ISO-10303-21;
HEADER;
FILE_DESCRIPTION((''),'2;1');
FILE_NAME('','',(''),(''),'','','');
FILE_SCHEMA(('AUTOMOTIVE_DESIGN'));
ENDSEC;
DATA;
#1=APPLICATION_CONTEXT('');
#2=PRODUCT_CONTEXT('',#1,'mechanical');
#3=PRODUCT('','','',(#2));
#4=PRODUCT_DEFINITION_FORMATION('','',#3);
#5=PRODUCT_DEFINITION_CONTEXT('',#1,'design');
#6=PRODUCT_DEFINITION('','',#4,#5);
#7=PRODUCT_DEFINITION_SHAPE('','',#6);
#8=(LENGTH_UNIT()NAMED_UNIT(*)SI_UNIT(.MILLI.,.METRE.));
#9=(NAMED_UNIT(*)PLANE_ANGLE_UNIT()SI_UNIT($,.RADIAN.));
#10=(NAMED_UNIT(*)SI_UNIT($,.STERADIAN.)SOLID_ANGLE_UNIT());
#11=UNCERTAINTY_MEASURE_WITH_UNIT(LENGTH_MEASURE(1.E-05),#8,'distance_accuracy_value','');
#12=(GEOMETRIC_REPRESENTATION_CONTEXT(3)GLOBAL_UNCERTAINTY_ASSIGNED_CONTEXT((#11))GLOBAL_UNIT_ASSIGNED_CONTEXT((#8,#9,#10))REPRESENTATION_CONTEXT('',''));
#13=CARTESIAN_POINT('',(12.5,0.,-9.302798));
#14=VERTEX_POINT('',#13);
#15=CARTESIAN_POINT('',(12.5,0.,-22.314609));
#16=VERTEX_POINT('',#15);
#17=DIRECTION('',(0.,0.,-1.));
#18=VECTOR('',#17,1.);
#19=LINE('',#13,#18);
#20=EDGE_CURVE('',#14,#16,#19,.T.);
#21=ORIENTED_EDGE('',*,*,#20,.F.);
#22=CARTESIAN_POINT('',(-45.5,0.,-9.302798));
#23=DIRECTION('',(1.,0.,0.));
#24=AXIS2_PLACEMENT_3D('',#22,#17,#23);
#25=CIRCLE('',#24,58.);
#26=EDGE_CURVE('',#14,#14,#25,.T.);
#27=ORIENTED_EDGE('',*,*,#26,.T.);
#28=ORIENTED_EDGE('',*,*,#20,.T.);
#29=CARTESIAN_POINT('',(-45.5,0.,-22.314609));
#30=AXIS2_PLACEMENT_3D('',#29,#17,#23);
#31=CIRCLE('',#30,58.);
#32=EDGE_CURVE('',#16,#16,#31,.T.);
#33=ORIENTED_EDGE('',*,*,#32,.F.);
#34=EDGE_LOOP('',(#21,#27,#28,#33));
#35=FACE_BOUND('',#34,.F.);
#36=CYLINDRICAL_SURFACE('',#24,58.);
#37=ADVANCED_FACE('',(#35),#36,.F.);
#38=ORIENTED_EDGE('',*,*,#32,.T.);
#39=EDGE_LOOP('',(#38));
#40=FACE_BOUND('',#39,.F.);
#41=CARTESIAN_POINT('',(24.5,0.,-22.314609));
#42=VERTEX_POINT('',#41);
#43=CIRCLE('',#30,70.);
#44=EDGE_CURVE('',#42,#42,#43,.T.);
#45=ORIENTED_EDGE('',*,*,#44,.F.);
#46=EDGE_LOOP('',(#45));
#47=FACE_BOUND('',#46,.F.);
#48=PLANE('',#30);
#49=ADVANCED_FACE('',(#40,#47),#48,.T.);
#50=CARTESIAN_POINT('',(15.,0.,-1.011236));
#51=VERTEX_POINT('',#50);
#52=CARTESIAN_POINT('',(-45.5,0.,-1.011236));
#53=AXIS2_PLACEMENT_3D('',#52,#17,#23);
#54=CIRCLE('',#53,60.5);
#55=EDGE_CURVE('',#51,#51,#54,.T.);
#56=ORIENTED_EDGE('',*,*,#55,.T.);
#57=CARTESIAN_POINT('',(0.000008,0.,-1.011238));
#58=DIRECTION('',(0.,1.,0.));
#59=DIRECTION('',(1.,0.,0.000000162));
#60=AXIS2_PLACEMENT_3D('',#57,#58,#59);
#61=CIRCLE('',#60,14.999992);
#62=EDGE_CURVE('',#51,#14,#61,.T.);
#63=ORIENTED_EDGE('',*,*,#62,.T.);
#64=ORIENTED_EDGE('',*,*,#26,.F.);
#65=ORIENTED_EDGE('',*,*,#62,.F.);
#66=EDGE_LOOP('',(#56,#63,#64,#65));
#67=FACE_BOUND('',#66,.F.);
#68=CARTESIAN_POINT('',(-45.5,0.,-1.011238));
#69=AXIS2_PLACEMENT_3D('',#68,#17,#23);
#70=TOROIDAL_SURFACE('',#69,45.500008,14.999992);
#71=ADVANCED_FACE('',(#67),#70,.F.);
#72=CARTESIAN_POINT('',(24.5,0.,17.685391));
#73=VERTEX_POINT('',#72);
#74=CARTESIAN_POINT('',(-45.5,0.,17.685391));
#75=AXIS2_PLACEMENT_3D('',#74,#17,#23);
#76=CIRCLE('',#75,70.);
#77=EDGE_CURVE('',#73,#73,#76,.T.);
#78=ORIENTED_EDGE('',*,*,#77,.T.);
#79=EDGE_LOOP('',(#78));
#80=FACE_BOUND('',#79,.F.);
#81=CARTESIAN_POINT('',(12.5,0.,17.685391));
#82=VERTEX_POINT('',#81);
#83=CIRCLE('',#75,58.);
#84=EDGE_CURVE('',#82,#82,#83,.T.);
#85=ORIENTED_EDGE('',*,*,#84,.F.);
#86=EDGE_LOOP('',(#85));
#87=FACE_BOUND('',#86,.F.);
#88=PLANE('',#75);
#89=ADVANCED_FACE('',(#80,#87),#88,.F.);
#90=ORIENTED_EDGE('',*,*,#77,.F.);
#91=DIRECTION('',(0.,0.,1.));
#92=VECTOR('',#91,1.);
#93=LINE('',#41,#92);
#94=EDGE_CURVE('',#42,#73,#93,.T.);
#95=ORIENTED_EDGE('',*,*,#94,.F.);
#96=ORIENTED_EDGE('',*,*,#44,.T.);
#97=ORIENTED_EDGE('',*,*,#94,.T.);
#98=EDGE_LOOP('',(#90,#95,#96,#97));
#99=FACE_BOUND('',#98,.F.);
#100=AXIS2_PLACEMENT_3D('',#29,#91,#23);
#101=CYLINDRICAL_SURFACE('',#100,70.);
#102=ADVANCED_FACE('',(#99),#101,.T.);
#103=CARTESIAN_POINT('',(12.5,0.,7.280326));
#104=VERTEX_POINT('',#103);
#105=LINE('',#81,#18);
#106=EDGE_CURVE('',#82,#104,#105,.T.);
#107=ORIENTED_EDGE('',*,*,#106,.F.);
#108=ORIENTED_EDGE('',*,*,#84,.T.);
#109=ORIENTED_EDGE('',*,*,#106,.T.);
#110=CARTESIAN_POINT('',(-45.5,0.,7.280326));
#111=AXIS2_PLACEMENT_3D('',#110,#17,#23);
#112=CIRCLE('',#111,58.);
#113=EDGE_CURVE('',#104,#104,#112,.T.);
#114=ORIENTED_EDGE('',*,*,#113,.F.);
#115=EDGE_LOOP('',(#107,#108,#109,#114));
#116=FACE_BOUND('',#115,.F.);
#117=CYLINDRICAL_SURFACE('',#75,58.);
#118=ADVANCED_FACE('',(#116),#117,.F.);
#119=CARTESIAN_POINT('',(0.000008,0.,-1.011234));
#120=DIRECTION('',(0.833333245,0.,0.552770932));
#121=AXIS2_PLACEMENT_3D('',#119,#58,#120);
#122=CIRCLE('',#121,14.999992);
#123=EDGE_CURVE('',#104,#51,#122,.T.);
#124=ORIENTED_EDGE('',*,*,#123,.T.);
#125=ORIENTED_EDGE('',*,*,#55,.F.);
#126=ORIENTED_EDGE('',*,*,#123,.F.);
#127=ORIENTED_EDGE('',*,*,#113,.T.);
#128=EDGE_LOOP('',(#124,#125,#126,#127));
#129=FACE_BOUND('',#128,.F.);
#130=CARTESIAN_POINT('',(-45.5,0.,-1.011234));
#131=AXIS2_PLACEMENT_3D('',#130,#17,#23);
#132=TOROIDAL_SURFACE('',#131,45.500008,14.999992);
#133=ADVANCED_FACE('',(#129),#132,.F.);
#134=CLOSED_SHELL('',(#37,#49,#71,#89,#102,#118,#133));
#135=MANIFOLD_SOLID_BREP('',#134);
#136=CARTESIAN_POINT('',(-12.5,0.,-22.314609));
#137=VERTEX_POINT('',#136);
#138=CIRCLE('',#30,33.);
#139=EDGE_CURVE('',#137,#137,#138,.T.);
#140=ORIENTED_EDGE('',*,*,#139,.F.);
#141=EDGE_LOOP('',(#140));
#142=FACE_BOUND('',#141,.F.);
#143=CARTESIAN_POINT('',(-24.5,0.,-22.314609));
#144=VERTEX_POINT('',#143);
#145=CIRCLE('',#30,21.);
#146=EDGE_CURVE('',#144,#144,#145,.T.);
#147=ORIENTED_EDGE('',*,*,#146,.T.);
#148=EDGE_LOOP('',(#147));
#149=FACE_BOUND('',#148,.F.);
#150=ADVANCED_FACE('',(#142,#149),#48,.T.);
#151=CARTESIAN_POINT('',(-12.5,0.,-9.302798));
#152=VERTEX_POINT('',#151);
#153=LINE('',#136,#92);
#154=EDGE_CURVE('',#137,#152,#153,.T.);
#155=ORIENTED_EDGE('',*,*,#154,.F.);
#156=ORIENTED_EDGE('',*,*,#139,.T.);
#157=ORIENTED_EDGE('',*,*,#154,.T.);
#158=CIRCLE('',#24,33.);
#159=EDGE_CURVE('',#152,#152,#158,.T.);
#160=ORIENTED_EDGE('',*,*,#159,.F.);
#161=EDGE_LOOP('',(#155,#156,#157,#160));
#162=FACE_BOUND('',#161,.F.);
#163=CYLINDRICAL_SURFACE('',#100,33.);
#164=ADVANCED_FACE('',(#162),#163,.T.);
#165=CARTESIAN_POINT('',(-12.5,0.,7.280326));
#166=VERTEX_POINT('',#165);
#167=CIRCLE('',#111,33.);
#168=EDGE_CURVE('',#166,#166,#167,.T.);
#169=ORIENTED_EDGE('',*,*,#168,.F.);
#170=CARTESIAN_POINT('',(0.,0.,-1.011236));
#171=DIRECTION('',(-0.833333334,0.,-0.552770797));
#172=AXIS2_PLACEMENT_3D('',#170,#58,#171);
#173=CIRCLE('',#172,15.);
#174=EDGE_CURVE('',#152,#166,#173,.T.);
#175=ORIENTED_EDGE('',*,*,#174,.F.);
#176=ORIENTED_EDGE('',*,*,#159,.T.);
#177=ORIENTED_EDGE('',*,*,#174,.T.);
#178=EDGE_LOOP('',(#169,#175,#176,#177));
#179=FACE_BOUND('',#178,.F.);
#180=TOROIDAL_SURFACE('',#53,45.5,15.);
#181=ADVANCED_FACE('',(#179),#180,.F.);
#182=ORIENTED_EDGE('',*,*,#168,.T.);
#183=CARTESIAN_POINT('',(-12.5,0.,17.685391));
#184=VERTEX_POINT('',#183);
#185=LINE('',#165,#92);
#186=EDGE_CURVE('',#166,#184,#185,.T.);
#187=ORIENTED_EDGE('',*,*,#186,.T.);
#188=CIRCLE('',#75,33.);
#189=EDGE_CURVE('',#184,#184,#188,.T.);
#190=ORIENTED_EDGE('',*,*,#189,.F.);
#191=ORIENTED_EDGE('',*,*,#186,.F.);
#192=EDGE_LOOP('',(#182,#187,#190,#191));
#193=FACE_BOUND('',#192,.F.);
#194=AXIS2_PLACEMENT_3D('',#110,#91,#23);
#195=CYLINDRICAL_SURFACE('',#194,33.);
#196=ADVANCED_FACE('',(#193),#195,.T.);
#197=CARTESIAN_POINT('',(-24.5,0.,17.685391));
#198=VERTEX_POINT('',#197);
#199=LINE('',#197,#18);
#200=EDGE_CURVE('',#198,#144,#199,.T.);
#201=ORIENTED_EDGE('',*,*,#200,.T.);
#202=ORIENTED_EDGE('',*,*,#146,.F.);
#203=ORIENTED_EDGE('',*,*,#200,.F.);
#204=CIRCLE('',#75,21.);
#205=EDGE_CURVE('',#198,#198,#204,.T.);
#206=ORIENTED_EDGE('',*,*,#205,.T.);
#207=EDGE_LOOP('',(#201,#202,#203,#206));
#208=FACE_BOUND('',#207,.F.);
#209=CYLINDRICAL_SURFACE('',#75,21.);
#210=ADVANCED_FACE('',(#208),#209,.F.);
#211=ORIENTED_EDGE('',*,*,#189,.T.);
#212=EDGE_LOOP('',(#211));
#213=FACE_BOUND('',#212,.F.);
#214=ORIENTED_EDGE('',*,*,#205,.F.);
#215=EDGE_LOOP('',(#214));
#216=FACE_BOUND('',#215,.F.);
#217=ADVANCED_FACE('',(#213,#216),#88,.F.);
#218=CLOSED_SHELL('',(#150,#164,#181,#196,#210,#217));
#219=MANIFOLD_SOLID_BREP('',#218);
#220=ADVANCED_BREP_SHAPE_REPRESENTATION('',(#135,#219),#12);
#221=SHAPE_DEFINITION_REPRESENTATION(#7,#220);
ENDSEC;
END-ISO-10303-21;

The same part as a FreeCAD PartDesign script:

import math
import FreeCAD as App
import Part
import Sketcher
Q = App.Units.Quantity

doc = App.newDocument("Part")
body = doc.addObject("PartDesign::Body", "Body")
body.AllowCompound = True

# Sketch on XZ plane
sketch1 = body.newObject("Sketcher::SketchObject", "Sketch")
sketch1.AttachmentSupport = (doc.getObject("XZ_Plane"), [""])
sketch1.MapMode = "FlatFace"
sketch1.addGeometry(Part.ArcOfCircle(Part.Circle(App.Vector(0, -1, 0), App.Vector(0, 0, 1), 15), math.radians(146), math.radians(214)), False)
sketch1.addGeometry(Part.LineSegment(App.Vector(-12, 7, 0), App.Vector(-12, 18, 0)), False)
sketch1.addGeometry(Part.LineSegment(App.Vector(-12, 18, 0), App.Vector(-24, 18, 0)), False)
sketch1.addGeometry(Part.LineSegment(App.Vector(-24, 18, 0), App.Vector(-24, -22, 0)), False)
sketch1.addGeometry(Part.LineSegment(App.Vector(-24, -22, 0), App.Vector(-12, -22, 0)), False)
sketch1.addGeometry(Part.LineSegment(App.Vector(-12, -22, 0), App.Vector(-12, -9, 0)), False)
sketch1.addGeometry(Part.LineSegment(App.Vector(24, 18, 0), App.Vector(12, 18, 0)), False)
sketch1.addGeometry(Part.LineSegment(App.Vector(12, 18, 0), App.Vector(12, 7, 0)), False)
sketch1.addGeometry(Part.ArcOfCircle(Part.Circle(App.Vector(0, -1, 0), App.Vector(0, 0, 1), 15), math.radians(0), math.radians(34)), False)
sketch1.addGeometry(Part.ArcOfCircle(Part.Circle(App.Vector(0, -1, 0), App.Vector(0, 0, 1), 15), math.radians(-34), math.radians(0)), False)
sketch1.addGeometry(Part.LineSegment(App.Vector(12, -9, 0), App.Vector(12, -22, 0)), False)
sketch1.addGeometry(Part.LineSegment(App.Vector(12, -22, 0), App.Vector(24, -22, 0)), False)
sketch1.addGeometry(Part.LineSegment(App.Vector(24, -22, 0), App.Vector(24, 18, 0)), False)
sketch1.addGeometry(Part.LineSegment(App.Vector(-46, 18, 0), App.Vector(-46, -22, 0)), True)  # axis
sketch1.addConstraint(Sketcher.Constraint("Coincident", 0, 1, 1, 1))
sketch1.addConstraint(Sketcher.Constraint("Coincident", 1, 2, 2, 1))
sketch1.addConstraint(Sketcher.Constraint("Coincident", 2, 2, 3, 1))
sketch1.addConstraint(Sketcher.Constraint("Coincident", 3, 2, 4, 1))
sketch1.addConstraint(Sketcher.Constraint("Coincident", 4, 2, 5, 1))
sketch1.addConstraint(Sketcher.Constraint("Coincident", 5, 2, 0, 2))
sketch1.addConstraint(Sketcher.Constraint("Coincident", 6, 2, 7, 1))
sketch1.addConstraint(Sketcher.Constraint("Coincident", 7, 2, 8, 2))
sketch1.addConstraint(Sketcher.Constraint("Tangent", 8, 1, 9, 2))
sketch1.addConstraint(Sketcher.Constraint("Coincident", 9, 1, 10, 1))
sketch1.addConstraint(Sketcher.Constraint("Coincident", 10, 2, 11, 1))
sketch1.addConstraint(Sketcher.Constraint("Coincident", 11, 2, 12, 1))
sketch1.addConstraint(Sketcher.Constraint("Coincident", 12, 2, 6, 1))
sketch1.addConstraint(Sketcher.Constraint("Vertical", 1))
sketch1.addConstraint(Sketcher.Constraint("Horizontal", 2))
sketch1.addConstraint(Sketcher.Constraint("Vertical", 3))
sketch1.addConstraint(Sketcher.Constraint("Horizontal", 4))
sketch1.addConstraint(Sketcher.Constraint("Vertical", 5))
sketch1.addConstraint(Sketcher.Constraint("Horizontal", 6))
sketch1.addConstraint(Sketcher.Constraint("Vertical", 7))
sketch1.addConstraint(Sketcher.Constraint("Vertical", 10))
sketch1.addConstraint(Sketcher.Constraint("Horizontal", 11))
sketch1.addConstraint(Sketcher.Constraint("Vertical", 12))
sketch1.addConstraint(Sketcher.Constraint("Vertical", 13))
sketch1.addConstraint(Sketcher.Constraint("Coincident", 8, 3, 0, 3))
sketch1.addConstraint(Sketcher.Constraint("Equal", 8, 9))
sketch1.addConstraint(Sketcher.Constraint("Symmetric", 1, 2, 6, 2, -2))
sketch1.addConstraint(Sketcher.Constraint("Symmetric", 5, 2, 9, 1, -2))
sketch1.addConstraint(Sketcher.Constraint("Symmetric", 3, 2, 11, 2, -2))
sketch1.addConstraint(Sketcher.Constraint("PointOnObject", 0, 3, -2))
sketch1.addConstraint(Sketcher.Constraint("Horizontal", 0, 3, 8, 1))
sketch1.addConstraint(Sketcher.Constraint("Horizontal", 12, 2, 13, 1))
sketch1.addConstraint(Sketcher.Constraint("Horizontal", 11, 2, 13, 2))
sketch1.addConstraint(Sketcher.Constraint("Vertical", 1, 2, 4, 2))
sketch1.addConstraint(Sketcher.Constraint("Radius", 0, Q("15 mm")))
sketch1.addConstraint(Sketcher.Constraint("DistanceX", 2, 2, 2, 1, Q("12 mm")))
sketch1.addConstraint(Sketcher.Constraint("DistanceY", 3, 2, 3, 1, Q("40 mm")))
sketch1.addConstraint(Sketcher.Constraint("DistanceX", 1, 2, 6, 2, Q("25 mm")))
sketch1.addConstraint(Sketcher.Constraint("DistanceX", 13, 1, 2, 2, Q("21 mm")))
sketch1.addConstraint(Sketcher.Constraint("DistanceY", 5, 1, 5, 2, Q("13.011811 mm")))
sketch1.addConstraint(Sketcher.Constraint("DistanceY", 9, 1, -1, 1, Q("9.302798 mm")))
revolution = body.newObject("PartDesign::Revolution", "Revolution")
revolution.Profile = sketch1
revolution.ReferenceAxis = (sketch1, ["Axis0"])
revolution.Angle = 360

doc.recompute()
